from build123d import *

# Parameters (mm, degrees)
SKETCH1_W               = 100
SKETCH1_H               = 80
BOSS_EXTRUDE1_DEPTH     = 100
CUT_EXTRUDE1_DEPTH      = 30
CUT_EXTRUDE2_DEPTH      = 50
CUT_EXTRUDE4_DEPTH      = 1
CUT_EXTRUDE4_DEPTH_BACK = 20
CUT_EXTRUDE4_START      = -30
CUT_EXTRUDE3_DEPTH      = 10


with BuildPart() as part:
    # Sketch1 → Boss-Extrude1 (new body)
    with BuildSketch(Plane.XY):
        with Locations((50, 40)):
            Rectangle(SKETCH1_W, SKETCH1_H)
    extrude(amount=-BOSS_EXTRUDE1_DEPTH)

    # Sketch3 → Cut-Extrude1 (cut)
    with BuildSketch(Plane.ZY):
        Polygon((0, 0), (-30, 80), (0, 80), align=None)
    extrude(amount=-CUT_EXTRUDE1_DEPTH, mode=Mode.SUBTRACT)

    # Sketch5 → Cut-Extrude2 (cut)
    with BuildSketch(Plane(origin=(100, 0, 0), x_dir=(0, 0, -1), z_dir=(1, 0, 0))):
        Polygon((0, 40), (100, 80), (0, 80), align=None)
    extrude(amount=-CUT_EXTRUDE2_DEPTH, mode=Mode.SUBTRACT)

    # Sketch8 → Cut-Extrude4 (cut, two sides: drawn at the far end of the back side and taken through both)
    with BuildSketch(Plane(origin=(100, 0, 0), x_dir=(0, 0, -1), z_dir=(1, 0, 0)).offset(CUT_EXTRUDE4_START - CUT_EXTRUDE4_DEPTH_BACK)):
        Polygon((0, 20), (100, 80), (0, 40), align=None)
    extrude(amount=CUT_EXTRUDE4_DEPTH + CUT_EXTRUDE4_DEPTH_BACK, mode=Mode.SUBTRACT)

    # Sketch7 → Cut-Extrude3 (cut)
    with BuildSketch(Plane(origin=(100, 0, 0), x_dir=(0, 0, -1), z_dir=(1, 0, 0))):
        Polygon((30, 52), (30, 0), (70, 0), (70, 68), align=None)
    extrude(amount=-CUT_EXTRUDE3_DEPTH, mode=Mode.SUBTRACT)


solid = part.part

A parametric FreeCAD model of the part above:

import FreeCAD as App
import Part
import Sketcher

V = App.Vector
Q = App.Units.Quantity


def add_polygon(sketch, points):
    """Adds a closed chain of lines whose ends are joined by coincident constraints."""
    first, n = sketch.GeometryCount, len(points)
    for a, b in zip(points, points[1:] + points[:1]):
        sketch.addGeometry(Part.LineSegment(App.Vector(*a, 0), App.Vector(*b, 0)), False)
    for i in range(n):
        sketch.addConstraint(Sketcher.Constraint("Coincident", first + i, 2, first + (i + 1) % n, 1))

doc = App.newDocument("Part")
body = doc.addObject("PartDesign::Body", "Body")

# Sketch on XY plane
sketch1 = doc.addObject("Sketcher::SketchObject", "Sketch")
body.addObject(sketch1)
sketch1.AttachmentSupport = (doc.XY_Plane, [""])
sketch1.MapMode = "FlatFace"
add_polygon(sketch1, [(0, 80), (0, 0), (100, 0), (100, 80)])  # lines 0-3
sketch1.addConstraint([
    Sketcher.Constraint("Vertical", 0),
    Sketcher.Constraint("Horizontal", 1),
    Sketcher.Constraint("Vertical", 2),
    Sketcher.Constraint("Horizontal", 3),
    Sketcher.Constraint("Coincident", 0, 2, -1, 1),
    Sketcher.Constraint("DistanceX", 1, 1, 1, 2, Q("100 mm")),
    Sketcher.Constraint("DistanceY", 0, 2, 0, 1, Q("80 mm")),
])
pad1 = doc.addObject("PartDesign::Pad", "Pad")
body.addObject(pad1)
pad1.Profile = sketch1
pad1.Length = 100
pad1.Reversed = True

# Sketch on YZ plane
sketch2 = doc.addObject("Sketcher::SketchObject", "Sketch001")
body.addObject(sketch2)
sketch2.AttachmentSupport = (doc.YZ_Plane, [""])
sketch2.MapMode = "FlatFace"
add_polygon(sketch2, [(80, -30), (0, 0), (80, 0)])  # lines 0-2
sketch2.addConstraint([
    Sketcher.Constraint("Horizontal", 1),
    Sketcher.Constraint("Vertical", 2),
    Sketcher.Constraint("Coincident", 0, 2, -1, 1),
    Sketcher.Constraint("DistanceX", 1, 1, 1, 2, Q("80 mm")),
    Sketcher.Constraint("DistanceY", 2, 2, 2, 1, Q("30 mm")),
])
pocket1 = doc.addObject("PartDesign::Pocket", "Pocket")
body.addObject(pocket1)
pocket1.Profile = sketch2
pocket1.Length = 30
pocket1.Reversed = True

# Sketch on YZ plane
sketch3 = doc.addObject("Sketcher::SketchObject", "Sketch002")
body.addObject(sketch3)
sketch3.AttachmentSupport = (doc.YZ_Plane, [""])
sketch3.MapMode = "FlatFace"
sketch3.AttachmentOffset = App.Placement(V(0, 0, 100), App.Rotation())
add_polygon(sketch3, [(40, 0), (80, -100), (80, 0)])  # lines 0-2
sketch3.addConstraint([
    Sketcher.Constraint("Vertical", 1),
    Sketcher.Constraint("Horizontal", 2),
    Sketcher.Constraint("PointOnObject", 1, 2, -1),
    Sketcher.Constraint("DistanceX", 2, 2, 2, 1, Q("40 mm")),
    Sketcher.Constraint("DistanceY", 1, 1, 1, 2, Q("100 mm")),
    Sketcher.Constraint("DistanceX", -1, 1, 0, 2, Q("80 mm")),
])
pocket2 = doc.addObject("PartDesign::Pocket", "Pocket001")
body.addObject(pocket2)
pocket2.Profile = sketch3
pocket2.Length = 50

# Sketch on YZ plane
sketch4 = doc.addObject("Sketcher::SketchObject", "Sketch003")
body.addObject(sketch4)
sketch4.AttachmentSupport = (doc.YZ_Plane, [""])
sketch4.MapMode = "FlatFace"
sketch4.AttachmentOffset = App.Placement(V(0, 0, 70), App.Rotation())
add_polygon(sketch4, [(20, 0), (80, -100), (40, 0)])  # lines 0-2
sketch4.addConstraint([
    Sketcher.Constraint("Horizontal", 2),
    Sketcher.Constraint("PointOnObject", 1, 2, -1),
    Sketcher.Constraint("DistanceX", 2, 2, 2, 1, Q("20 mm")),
    Sketcher.Constraint("DistanceX", -1, 1, 0, 2, Q("80 mm")),
    Sketcher.Constraint("DistanceY", 0, 2, -1, 1, Q("100 mm")),
    Sketcher.Constraint("DistanceX", -1, 1, 1, 2, Q("40 mm")),
])
pocket3 = doc.addObject("PartDesign::Pocket", "Pocket002")
body.addObject(pocket3)
pocket3.Profile = sketch4
pocket3.Type = "TwoLengths"
pocket3.Length = 1
pocket3.Length2 = 20
pocket3.Reversed = True

# Sketch on YZ plane
sketch5 = doc.addObject("Sketcher::SketchObject", "Sketch004")
body.addObject(sketch5)
sketch5.AttachmentSupport = (doc.YZ_Plane, [""])
sketch5.MapMode = "FlatFace"
sketch5.AttachmentOffset = App.Placement(V(0, 0, 100), App.Rotation())
add_polygon(sketch5, [(52, -30), (0, -30), (0, -70), (68, -70)])  # lines 0-3
sketch5.addConstraint([
    Sketcher.Constraint("Horizontal", 0),
    Sketcher.Constraint("Vertical", 1),
    Sketcher.Constraint("Horizontal", 2),
    Sketcher.Constraint("PointOnObject", 0, 2, -2),
    Sketcher.Constraint("DistanceX", 0, 2, 0, 1, Q("52 mm")),
    Sketcher.Constraint("DistanceX", 2, 1, 2, 2, Q("68 mm")),
    Sketcher.Constraint("DistanceY", 1, 2, 1, 1, Q("40 mm")),
    Sketcher.Constraint("DistanceY", 0, 2, -1, 1, Q("30 mm")),
])
pocket4 = doc.addObject("PartDesign::Pocket", "Pocket003")
body.addObject(pocket4)
pocket4.Profile = sketch5
pocket4.Length = 10

doc.recompute()
